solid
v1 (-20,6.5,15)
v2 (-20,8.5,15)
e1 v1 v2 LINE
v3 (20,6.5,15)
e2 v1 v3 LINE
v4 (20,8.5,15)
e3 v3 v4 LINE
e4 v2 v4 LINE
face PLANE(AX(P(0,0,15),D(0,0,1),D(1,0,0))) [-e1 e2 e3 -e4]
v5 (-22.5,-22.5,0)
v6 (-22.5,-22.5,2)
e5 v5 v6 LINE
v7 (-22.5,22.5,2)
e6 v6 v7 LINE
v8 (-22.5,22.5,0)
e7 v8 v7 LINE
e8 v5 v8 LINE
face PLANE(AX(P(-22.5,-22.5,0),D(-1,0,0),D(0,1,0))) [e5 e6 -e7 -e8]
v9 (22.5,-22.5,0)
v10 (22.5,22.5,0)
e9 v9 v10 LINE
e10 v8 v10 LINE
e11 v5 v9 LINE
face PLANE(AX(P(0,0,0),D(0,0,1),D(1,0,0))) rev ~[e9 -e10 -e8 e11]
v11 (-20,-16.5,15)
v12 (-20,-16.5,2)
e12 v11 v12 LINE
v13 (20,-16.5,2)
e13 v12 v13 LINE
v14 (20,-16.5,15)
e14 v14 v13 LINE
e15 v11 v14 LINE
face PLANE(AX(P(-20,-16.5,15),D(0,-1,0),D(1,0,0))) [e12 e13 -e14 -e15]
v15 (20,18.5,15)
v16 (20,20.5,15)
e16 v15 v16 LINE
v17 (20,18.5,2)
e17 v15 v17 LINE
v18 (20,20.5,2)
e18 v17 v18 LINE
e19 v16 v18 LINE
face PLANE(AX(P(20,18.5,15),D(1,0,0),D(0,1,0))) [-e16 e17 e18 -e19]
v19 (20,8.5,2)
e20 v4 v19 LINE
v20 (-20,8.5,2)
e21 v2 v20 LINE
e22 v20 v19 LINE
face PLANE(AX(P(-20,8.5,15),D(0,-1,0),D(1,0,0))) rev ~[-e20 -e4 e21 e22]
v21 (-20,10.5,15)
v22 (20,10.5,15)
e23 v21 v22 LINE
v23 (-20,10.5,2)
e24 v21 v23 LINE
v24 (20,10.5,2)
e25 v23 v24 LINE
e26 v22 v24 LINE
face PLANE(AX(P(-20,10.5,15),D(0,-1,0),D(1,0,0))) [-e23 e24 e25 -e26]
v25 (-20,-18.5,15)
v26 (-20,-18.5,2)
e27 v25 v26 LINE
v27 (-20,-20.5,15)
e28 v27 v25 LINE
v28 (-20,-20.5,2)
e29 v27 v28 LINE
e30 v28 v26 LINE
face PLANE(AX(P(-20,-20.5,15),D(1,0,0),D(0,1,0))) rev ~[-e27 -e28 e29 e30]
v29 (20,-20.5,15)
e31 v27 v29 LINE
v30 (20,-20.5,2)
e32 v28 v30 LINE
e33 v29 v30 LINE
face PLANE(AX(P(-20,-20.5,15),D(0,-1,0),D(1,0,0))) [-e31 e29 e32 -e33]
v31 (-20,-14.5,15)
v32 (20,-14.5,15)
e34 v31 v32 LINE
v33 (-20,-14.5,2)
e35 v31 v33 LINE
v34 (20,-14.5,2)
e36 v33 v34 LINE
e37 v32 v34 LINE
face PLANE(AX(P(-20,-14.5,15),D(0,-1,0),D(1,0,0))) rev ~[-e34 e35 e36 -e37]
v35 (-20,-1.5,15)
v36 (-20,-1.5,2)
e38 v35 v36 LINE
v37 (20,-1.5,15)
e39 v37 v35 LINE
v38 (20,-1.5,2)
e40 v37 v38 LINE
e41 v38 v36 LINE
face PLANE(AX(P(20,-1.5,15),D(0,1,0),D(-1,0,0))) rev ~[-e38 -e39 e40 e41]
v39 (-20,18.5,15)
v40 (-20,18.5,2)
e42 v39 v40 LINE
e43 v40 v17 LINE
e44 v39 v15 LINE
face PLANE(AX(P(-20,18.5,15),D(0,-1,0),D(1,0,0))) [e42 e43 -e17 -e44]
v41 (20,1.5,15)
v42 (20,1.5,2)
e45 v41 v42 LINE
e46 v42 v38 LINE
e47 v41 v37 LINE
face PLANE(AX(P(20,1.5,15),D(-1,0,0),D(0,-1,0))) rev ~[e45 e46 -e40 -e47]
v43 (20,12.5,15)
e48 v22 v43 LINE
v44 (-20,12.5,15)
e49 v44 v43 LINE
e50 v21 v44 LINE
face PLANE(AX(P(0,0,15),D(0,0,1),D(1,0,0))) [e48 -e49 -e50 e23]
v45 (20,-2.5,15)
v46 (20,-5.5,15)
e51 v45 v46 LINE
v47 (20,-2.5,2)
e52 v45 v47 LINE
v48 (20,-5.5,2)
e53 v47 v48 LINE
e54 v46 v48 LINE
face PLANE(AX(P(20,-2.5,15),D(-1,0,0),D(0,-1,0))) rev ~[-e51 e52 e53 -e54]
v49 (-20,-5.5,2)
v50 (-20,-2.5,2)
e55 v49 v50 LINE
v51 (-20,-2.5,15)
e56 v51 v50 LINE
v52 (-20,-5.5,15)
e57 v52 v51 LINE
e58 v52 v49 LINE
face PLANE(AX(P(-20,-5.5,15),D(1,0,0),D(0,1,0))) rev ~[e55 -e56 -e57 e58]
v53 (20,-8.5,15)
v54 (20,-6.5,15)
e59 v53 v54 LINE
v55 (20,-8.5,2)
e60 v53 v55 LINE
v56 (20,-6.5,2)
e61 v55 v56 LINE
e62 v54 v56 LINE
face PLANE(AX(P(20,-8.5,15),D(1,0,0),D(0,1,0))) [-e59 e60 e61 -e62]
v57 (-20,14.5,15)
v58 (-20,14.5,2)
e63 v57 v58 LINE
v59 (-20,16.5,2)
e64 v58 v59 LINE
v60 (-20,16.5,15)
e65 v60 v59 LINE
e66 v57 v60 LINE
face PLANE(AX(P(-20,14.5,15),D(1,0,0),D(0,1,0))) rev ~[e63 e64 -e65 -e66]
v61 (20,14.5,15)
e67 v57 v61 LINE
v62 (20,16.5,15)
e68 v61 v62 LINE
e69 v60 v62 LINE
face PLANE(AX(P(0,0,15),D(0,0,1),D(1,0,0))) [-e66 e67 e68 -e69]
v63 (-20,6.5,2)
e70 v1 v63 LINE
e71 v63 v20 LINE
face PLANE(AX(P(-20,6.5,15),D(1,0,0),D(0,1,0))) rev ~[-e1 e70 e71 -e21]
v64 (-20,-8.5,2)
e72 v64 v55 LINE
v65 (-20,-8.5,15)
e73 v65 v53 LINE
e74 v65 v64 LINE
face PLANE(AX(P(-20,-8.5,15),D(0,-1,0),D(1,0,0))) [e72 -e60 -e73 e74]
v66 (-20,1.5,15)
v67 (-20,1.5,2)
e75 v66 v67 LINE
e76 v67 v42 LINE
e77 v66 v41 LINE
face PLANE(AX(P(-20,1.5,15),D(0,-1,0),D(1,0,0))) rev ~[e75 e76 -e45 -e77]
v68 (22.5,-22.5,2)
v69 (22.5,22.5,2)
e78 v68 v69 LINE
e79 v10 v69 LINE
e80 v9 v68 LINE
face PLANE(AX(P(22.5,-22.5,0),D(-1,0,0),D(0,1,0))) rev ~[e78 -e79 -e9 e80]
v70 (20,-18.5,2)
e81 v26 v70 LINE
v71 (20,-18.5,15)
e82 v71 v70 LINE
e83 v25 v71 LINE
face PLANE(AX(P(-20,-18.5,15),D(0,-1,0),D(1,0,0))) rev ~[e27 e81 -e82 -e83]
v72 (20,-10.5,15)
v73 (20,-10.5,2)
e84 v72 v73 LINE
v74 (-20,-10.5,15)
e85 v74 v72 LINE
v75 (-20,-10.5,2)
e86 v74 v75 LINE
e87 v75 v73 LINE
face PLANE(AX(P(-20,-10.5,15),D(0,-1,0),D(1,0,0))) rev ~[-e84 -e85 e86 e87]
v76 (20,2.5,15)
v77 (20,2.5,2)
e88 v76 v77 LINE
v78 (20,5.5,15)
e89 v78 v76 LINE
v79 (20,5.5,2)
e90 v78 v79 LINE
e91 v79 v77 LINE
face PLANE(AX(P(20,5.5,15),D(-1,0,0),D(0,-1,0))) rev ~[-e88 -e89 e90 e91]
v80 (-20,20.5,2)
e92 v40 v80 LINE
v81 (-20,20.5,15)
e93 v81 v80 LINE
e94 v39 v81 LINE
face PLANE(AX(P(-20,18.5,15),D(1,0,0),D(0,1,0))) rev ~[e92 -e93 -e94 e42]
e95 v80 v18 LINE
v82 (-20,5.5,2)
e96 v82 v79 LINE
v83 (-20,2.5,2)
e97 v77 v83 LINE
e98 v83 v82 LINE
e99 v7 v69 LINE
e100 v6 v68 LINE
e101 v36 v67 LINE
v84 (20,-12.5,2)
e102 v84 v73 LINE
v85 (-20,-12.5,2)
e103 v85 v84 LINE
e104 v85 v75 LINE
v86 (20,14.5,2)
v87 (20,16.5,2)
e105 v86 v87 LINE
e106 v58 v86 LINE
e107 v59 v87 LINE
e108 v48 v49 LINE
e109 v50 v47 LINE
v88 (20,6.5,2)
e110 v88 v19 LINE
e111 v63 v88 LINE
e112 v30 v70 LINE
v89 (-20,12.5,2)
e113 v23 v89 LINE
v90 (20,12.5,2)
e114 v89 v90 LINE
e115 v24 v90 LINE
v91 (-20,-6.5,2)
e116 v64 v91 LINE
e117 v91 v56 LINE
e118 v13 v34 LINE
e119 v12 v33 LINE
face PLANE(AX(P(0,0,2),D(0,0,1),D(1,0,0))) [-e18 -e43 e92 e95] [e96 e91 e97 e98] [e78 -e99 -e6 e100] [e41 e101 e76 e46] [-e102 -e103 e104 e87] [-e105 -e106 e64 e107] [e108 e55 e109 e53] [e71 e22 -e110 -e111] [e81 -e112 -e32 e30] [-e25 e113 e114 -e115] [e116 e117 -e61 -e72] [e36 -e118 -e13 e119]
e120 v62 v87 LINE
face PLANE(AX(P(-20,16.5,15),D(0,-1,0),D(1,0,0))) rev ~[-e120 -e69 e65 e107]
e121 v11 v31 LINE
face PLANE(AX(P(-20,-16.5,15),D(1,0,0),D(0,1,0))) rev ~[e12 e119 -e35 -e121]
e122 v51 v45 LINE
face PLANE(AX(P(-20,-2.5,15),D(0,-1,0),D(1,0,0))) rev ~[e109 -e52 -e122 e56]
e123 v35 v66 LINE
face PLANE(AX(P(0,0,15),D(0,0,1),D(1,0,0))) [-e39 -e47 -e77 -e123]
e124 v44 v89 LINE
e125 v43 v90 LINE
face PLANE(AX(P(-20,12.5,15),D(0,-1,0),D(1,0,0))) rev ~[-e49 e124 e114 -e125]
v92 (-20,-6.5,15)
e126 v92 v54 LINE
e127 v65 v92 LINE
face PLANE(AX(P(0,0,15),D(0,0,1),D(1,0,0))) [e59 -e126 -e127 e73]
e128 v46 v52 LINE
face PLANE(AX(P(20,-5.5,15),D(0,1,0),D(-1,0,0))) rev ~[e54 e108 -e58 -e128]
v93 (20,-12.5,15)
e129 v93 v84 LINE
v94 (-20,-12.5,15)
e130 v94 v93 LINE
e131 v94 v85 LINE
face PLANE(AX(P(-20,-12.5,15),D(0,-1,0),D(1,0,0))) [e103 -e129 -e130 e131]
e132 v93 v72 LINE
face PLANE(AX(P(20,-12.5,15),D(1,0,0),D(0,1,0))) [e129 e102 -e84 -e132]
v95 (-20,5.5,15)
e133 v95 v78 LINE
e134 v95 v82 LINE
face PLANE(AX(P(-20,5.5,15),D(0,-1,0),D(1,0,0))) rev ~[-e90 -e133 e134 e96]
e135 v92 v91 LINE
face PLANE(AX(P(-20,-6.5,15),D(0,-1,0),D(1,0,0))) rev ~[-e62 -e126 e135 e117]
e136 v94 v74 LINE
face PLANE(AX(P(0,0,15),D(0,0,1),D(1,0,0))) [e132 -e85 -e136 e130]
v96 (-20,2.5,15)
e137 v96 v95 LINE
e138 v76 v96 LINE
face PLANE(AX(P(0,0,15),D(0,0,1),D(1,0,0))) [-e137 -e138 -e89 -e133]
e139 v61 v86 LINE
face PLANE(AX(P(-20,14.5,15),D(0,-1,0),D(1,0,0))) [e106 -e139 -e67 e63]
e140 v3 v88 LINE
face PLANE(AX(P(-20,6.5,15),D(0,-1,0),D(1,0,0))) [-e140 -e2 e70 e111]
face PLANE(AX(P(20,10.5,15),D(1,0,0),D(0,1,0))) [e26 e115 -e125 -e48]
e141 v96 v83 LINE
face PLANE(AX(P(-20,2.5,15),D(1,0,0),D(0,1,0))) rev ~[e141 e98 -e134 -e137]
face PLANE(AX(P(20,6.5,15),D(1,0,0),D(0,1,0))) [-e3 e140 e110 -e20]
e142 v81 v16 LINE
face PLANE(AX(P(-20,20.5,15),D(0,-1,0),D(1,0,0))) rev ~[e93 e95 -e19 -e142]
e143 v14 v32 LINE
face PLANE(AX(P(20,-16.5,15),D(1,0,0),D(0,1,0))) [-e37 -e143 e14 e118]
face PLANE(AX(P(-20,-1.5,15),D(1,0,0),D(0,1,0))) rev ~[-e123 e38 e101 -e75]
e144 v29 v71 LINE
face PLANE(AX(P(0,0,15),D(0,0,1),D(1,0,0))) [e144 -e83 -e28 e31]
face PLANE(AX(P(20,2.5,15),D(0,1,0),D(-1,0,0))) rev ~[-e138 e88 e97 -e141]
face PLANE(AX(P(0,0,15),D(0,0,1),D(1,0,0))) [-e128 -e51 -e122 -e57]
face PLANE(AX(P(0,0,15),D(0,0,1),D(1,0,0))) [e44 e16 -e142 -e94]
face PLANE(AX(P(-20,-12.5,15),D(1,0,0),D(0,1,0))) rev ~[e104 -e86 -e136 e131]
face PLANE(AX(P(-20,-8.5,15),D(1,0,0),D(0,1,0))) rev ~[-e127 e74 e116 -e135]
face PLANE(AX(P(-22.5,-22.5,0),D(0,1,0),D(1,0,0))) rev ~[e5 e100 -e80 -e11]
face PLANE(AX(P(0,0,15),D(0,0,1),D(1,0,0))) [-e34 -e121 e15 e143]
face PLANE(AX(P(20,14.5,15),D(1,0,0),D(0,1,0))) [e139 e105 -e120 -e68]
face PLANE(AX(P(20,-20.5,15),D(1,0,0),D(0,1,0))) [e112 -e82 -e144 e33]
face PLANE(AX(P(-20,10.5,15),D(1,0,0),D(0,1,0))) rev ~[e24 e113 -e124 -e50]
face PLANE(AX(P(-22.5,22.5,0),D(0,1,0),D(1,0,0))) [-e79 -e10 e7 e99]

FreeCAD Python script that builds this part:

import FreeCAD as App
import Part
import Sketcher


def add_polygon(sketch, points):
    """Adds a closed chain of lines whose ends are joined by coincident constraints."""
    first, n = sketch.GeometryCount, len(points)
    for a, b in zip(points, points[1:] + points[:1]):
        sketch.addGeometry(Part.LineSegment(App.Vector(*a, 0), App.Vector(*b, 0)), False)
    for i in range(n):
        sketch.addConstraint(Sketcher.Constraint("Coincident", first + i, 2, first + (i + 1) % n, 1))

doc = App.newDocument("Part")
body = doc.addObject("PartDesign::Body", "Body")

sketch1 = doc.addObject("Sketcher::SketchObject", "Sketch")
body.addObject(sketch1)
sketch1.AttachmentSupport = (doc.XY_Plane, [""])
sketch1.MapMode = "FlatFace"
add_polygon(sketch1, [(-22, 22), (-22, -22), (22, -22), (22, 22)])
sketch1.addConstraint([
    Sketcher.Constraint("Vertical", 0),
    Sketcher.Constraint("Horizontal", 1),
    Sketcher.Constraint("Vertical", 2),
    Sketcher.Constraint("Horizontal", 3),
    Sketcher.Constraint("Symmetric", 0, 2, 2, 2, -1, 1),
    Sketcher.Constraint("Equal", 3, 0),
    Sketcher.Constraint("DistanceX", 1, 1, 1, 2, 45.0),
])
pad1 = doc.addObject("PartDesign::Pad", "Pad")
body.addObject(pad1)
pad1.Profile = sketch1
pad1.Length = 15

sketch2 = doc.addObject("Sketcher::SketchObject", "Sketch001")
body.addObject(sketch2)
sketch2.AttachmentSupport = (doc.XY_Plane, [""])
sketch2.MapMode = "FlatFace"
sketch2.AttachmentOffset = App.Placement(App.Vector(0, 0, 15), App.Rotation())
add_polygon(sketch2, [(-22.5, 22.5), (-22.5, -22.5), (22.5, -22.5), (22.5, 22.5)])
add_polygon(sketch2, [(20, -20.5), (-20, -20.5), (-20, -18.5), (20, -18.5)])
add_polygon(sketch2, [(20, -16.5), (-20, -16.5), (-20, -14.5), (20, -14.5)])
add_polygon(sketch2, [(20, -12.5), (-20, -12.5), (-20, -10.5), (20, -10.5)])
add_polygon(sketch2, [(20, -8.5), (-20, -8.5), (-20, -6.5), (20, -6.5)])
add_polygon(sketch2, [(-20, -5.5), (-20, -2.5), (20, -2.5), (20, -5.5)])
add_polygon(sketch2, [(-20, -1.5), (-20, 1.5), (20, 1.5), (20, -1.5)])
add_polygon(sketch2, [(-20, 2.5), (-20, 5.5), (20, 5.5), (20, 2.5)])
add_polygon(sketch2, [(20, 6.5), (-20, 6.5), (-20, 8.5), (20, 8.5)])
add_polygon(sketch2, [(20, 10.5), (-20, 10.5), (-20, 12.5), (20, 12.5)])
add_polygon(sketch2, [(20, 14.5), (-20, 14.5), (-20, 16.5), (20, 16.5)])
add_polygon(sketch2, [(20, 18.5), (-20, 18.5), (-20, 20.5), (20, 20.5)])
sketch2.addConstraint([
    Sketcher.Constraint("Vertical", 0),
    Sketcher.Constraint("Horizontal", 1),
    Sketcher.Constraint("Vertical", 2),
    Sketcher.Constraint("Horizontal", 3),
    Sketcher.Constraint("Horizontal", 4),
    Sketcher.Constraint("Vertical", 5),
    Sketcher.Constraint("Horizontal", 6),
    Sketcher.Constraint("Vertical", 7),
    Sketcher.Constraint("Horizontal", 8),
    Sketcher.Constraint("Vertical", 9),
    Sketcher.Constraint("Horizontal", 10),
    Sketcher.Constraint("Vertical", 11),
    Sketcher.Constraint("Horizontal", 12),
    Sketcher.Constraint("Vertical", 13),
    Sketcher.Constraint("Horizontal", 14),
    Sketcher.Constraint("Vertical", 15),
    Sketcher.Constraint("Horizontal", 16),
    Sketcher.Constraint("Vertical", 17),
    Sketcher.Constraint("Horizontal", 18),
    Sketcher.Constraint("Vertical", 19),
    Sketcher.Constraint("Vertical", 20),
    Sketcher.Constraint("Horizontal", 21),
    Sketcher.Constraint("Vertical", 22),
    Sketcher.Constraint("Horizontal", 23),
    Sketcher.Constraint("Vertical", 24),
    Sketcher.Constraint("Horizontal", 25),
    Sketcher.Constraint("Vertical", 26),
    Sketcher.Constraint("Horizontal", 27),
    Sketcher.Constraint("Vertical", 28),
    Sketcher.Constraint("Horizontal", 29),
    Sketcher.Constraint("Vertical", 30),
    Sketcher.Constraint("Horizontal", 31),
    Sketcher.Constraint("Horizontal", 32),
    Sketcher.Constraint("Vertical", 33),
    Sketcher.Constraint("Horizontal", 34),
    Sketcher.Constraint("Vertical", 35),
    Sketcher.Constraint("Horizontal", 36),
    Sketcher.Constraint("Vertical", 37),
    Sketcher.Constraint("Horizontal", 38),
    Sketcher.Constraint("Vertical", 39),
    Sketcher.Constraint("Horizontal", 40),
    Sketcher.Constraint("Vertical", 41),
    Sketcher.Constraint("Horizontal", 42),
    Sketcher.Constraint("Vertical", 43),
    Sketcher.Constraint("Horizontal", 44),
    Sketcher.Constraint("Vertical", 45),
    Sketcher.Constraint("Horizontal", 46),
    Sketcher.Constraint("Vertical", 47),
    Sketcher.Constraint("Symmetric", 0, 2, 2, 2, -1, 1),
    Sketcher.Constraint("Symmetric", 24, 2, 26, 2, -1, 1),
    Sketcher.Constraint("Symmetric", 22, 2, 28, 2, -1, 1),
    Sketcher.Constraint("Symmetric", 20, 2, 30, 2, -1, 1),
    Sketcher.Constraint("Symmetric", 18, 2, 32, 2, -1, 1),
    Sketcher.Constraint("Symmetric", 16, 2, 34, 2, -1, 1),
    Sketcher.Constraint("Symmetric", 14, 2, 36, 2, -1, 1),
    Sketcher.Constraint("Symmetric", 12, 2, 38, 2, -1, 1),
    Sketcher.Constraint("Symmetric", 10, 2, 40, 2, -1, 1),
    Sketcher.Constraint("Symmetric", 8, 2, 42, 2, -1, 1),
    Sketcher.Constraint("Symmetric", 6, 2, 44, 2, -1, 1),
    Sketcher.Constraint("Symmetric", 4, 2, 46, 2, -1, 1),
    Sketcher.Constraint("Vertical", 5, 2, 8, 2),
    Sketcher.Constraint("Vertical", 7, 2, 10, 2),
    Sketcher.Constraint("Vertical", 9, 2, 12, 2),
    Sketcher.Constraint("Vertical", 11, 2, 14, 2),
    Sketcher.Constraint("Vertical", 13, 2, 16, 2),
    Sketcher.Constraint("Vertical", 15, 2, 18, 2),
    Sketcher.Constraint("Vertical", 17, 2, 20, 2),
    Sketcher.Constraint("Vertical", 19, 2, 21, 2),
    Sketcher.Constraint("Vertical", 23, 2, 24, 2),
    Sketcher.Constraint("Vertical", 22, 2, 25, 2),
    Sketcher.Constraint("Equal", 3, 0),
    Sketcher.Constraint("Equal", 7, 9),
    Sketcher.Constraint("Equal", 11, 13),
    Sketcher.Constraint("Equal", 15, 17),
    Sketcher.Constraint("Equal", 22, 24),
    Sketcher.Constraint("DistanceX", 1, 1, 1, 2, 45.0),
    Sketcher.Constraint("DistanceX", 4, 2, 4, 1, 40.0),
    Sketcher.Constraint("DistanceY", 5, 1, 5, 2, 2.0),
    Sketcher.Constraint("DistanceY", 20, 1, 20, 2, 3.0),
    Sketcher.Constraint("DistanceY", 0, 2, 4, 2, 2.0),
    Sketcher.Constraint("DistanceY", 5, 2, 8, 2, 2.0),
    Sketcher.Constraint("DistanceY", 9, 2, 12, 2, 2.0),
    Sketcher.Constraint("DistanceY", 13, 2, 16, 2, 2.0),
    Sketcher.Constraint("DistanceY", 17, 2, 20, 2, 4.0),
])
pocket1 = doc.addObject("PartDesign::Pocket", "Pocket")
body.addObject(pocket1)
pocket1.Profile = sketch2
pocket1.Length = 13

doc.recompute()
